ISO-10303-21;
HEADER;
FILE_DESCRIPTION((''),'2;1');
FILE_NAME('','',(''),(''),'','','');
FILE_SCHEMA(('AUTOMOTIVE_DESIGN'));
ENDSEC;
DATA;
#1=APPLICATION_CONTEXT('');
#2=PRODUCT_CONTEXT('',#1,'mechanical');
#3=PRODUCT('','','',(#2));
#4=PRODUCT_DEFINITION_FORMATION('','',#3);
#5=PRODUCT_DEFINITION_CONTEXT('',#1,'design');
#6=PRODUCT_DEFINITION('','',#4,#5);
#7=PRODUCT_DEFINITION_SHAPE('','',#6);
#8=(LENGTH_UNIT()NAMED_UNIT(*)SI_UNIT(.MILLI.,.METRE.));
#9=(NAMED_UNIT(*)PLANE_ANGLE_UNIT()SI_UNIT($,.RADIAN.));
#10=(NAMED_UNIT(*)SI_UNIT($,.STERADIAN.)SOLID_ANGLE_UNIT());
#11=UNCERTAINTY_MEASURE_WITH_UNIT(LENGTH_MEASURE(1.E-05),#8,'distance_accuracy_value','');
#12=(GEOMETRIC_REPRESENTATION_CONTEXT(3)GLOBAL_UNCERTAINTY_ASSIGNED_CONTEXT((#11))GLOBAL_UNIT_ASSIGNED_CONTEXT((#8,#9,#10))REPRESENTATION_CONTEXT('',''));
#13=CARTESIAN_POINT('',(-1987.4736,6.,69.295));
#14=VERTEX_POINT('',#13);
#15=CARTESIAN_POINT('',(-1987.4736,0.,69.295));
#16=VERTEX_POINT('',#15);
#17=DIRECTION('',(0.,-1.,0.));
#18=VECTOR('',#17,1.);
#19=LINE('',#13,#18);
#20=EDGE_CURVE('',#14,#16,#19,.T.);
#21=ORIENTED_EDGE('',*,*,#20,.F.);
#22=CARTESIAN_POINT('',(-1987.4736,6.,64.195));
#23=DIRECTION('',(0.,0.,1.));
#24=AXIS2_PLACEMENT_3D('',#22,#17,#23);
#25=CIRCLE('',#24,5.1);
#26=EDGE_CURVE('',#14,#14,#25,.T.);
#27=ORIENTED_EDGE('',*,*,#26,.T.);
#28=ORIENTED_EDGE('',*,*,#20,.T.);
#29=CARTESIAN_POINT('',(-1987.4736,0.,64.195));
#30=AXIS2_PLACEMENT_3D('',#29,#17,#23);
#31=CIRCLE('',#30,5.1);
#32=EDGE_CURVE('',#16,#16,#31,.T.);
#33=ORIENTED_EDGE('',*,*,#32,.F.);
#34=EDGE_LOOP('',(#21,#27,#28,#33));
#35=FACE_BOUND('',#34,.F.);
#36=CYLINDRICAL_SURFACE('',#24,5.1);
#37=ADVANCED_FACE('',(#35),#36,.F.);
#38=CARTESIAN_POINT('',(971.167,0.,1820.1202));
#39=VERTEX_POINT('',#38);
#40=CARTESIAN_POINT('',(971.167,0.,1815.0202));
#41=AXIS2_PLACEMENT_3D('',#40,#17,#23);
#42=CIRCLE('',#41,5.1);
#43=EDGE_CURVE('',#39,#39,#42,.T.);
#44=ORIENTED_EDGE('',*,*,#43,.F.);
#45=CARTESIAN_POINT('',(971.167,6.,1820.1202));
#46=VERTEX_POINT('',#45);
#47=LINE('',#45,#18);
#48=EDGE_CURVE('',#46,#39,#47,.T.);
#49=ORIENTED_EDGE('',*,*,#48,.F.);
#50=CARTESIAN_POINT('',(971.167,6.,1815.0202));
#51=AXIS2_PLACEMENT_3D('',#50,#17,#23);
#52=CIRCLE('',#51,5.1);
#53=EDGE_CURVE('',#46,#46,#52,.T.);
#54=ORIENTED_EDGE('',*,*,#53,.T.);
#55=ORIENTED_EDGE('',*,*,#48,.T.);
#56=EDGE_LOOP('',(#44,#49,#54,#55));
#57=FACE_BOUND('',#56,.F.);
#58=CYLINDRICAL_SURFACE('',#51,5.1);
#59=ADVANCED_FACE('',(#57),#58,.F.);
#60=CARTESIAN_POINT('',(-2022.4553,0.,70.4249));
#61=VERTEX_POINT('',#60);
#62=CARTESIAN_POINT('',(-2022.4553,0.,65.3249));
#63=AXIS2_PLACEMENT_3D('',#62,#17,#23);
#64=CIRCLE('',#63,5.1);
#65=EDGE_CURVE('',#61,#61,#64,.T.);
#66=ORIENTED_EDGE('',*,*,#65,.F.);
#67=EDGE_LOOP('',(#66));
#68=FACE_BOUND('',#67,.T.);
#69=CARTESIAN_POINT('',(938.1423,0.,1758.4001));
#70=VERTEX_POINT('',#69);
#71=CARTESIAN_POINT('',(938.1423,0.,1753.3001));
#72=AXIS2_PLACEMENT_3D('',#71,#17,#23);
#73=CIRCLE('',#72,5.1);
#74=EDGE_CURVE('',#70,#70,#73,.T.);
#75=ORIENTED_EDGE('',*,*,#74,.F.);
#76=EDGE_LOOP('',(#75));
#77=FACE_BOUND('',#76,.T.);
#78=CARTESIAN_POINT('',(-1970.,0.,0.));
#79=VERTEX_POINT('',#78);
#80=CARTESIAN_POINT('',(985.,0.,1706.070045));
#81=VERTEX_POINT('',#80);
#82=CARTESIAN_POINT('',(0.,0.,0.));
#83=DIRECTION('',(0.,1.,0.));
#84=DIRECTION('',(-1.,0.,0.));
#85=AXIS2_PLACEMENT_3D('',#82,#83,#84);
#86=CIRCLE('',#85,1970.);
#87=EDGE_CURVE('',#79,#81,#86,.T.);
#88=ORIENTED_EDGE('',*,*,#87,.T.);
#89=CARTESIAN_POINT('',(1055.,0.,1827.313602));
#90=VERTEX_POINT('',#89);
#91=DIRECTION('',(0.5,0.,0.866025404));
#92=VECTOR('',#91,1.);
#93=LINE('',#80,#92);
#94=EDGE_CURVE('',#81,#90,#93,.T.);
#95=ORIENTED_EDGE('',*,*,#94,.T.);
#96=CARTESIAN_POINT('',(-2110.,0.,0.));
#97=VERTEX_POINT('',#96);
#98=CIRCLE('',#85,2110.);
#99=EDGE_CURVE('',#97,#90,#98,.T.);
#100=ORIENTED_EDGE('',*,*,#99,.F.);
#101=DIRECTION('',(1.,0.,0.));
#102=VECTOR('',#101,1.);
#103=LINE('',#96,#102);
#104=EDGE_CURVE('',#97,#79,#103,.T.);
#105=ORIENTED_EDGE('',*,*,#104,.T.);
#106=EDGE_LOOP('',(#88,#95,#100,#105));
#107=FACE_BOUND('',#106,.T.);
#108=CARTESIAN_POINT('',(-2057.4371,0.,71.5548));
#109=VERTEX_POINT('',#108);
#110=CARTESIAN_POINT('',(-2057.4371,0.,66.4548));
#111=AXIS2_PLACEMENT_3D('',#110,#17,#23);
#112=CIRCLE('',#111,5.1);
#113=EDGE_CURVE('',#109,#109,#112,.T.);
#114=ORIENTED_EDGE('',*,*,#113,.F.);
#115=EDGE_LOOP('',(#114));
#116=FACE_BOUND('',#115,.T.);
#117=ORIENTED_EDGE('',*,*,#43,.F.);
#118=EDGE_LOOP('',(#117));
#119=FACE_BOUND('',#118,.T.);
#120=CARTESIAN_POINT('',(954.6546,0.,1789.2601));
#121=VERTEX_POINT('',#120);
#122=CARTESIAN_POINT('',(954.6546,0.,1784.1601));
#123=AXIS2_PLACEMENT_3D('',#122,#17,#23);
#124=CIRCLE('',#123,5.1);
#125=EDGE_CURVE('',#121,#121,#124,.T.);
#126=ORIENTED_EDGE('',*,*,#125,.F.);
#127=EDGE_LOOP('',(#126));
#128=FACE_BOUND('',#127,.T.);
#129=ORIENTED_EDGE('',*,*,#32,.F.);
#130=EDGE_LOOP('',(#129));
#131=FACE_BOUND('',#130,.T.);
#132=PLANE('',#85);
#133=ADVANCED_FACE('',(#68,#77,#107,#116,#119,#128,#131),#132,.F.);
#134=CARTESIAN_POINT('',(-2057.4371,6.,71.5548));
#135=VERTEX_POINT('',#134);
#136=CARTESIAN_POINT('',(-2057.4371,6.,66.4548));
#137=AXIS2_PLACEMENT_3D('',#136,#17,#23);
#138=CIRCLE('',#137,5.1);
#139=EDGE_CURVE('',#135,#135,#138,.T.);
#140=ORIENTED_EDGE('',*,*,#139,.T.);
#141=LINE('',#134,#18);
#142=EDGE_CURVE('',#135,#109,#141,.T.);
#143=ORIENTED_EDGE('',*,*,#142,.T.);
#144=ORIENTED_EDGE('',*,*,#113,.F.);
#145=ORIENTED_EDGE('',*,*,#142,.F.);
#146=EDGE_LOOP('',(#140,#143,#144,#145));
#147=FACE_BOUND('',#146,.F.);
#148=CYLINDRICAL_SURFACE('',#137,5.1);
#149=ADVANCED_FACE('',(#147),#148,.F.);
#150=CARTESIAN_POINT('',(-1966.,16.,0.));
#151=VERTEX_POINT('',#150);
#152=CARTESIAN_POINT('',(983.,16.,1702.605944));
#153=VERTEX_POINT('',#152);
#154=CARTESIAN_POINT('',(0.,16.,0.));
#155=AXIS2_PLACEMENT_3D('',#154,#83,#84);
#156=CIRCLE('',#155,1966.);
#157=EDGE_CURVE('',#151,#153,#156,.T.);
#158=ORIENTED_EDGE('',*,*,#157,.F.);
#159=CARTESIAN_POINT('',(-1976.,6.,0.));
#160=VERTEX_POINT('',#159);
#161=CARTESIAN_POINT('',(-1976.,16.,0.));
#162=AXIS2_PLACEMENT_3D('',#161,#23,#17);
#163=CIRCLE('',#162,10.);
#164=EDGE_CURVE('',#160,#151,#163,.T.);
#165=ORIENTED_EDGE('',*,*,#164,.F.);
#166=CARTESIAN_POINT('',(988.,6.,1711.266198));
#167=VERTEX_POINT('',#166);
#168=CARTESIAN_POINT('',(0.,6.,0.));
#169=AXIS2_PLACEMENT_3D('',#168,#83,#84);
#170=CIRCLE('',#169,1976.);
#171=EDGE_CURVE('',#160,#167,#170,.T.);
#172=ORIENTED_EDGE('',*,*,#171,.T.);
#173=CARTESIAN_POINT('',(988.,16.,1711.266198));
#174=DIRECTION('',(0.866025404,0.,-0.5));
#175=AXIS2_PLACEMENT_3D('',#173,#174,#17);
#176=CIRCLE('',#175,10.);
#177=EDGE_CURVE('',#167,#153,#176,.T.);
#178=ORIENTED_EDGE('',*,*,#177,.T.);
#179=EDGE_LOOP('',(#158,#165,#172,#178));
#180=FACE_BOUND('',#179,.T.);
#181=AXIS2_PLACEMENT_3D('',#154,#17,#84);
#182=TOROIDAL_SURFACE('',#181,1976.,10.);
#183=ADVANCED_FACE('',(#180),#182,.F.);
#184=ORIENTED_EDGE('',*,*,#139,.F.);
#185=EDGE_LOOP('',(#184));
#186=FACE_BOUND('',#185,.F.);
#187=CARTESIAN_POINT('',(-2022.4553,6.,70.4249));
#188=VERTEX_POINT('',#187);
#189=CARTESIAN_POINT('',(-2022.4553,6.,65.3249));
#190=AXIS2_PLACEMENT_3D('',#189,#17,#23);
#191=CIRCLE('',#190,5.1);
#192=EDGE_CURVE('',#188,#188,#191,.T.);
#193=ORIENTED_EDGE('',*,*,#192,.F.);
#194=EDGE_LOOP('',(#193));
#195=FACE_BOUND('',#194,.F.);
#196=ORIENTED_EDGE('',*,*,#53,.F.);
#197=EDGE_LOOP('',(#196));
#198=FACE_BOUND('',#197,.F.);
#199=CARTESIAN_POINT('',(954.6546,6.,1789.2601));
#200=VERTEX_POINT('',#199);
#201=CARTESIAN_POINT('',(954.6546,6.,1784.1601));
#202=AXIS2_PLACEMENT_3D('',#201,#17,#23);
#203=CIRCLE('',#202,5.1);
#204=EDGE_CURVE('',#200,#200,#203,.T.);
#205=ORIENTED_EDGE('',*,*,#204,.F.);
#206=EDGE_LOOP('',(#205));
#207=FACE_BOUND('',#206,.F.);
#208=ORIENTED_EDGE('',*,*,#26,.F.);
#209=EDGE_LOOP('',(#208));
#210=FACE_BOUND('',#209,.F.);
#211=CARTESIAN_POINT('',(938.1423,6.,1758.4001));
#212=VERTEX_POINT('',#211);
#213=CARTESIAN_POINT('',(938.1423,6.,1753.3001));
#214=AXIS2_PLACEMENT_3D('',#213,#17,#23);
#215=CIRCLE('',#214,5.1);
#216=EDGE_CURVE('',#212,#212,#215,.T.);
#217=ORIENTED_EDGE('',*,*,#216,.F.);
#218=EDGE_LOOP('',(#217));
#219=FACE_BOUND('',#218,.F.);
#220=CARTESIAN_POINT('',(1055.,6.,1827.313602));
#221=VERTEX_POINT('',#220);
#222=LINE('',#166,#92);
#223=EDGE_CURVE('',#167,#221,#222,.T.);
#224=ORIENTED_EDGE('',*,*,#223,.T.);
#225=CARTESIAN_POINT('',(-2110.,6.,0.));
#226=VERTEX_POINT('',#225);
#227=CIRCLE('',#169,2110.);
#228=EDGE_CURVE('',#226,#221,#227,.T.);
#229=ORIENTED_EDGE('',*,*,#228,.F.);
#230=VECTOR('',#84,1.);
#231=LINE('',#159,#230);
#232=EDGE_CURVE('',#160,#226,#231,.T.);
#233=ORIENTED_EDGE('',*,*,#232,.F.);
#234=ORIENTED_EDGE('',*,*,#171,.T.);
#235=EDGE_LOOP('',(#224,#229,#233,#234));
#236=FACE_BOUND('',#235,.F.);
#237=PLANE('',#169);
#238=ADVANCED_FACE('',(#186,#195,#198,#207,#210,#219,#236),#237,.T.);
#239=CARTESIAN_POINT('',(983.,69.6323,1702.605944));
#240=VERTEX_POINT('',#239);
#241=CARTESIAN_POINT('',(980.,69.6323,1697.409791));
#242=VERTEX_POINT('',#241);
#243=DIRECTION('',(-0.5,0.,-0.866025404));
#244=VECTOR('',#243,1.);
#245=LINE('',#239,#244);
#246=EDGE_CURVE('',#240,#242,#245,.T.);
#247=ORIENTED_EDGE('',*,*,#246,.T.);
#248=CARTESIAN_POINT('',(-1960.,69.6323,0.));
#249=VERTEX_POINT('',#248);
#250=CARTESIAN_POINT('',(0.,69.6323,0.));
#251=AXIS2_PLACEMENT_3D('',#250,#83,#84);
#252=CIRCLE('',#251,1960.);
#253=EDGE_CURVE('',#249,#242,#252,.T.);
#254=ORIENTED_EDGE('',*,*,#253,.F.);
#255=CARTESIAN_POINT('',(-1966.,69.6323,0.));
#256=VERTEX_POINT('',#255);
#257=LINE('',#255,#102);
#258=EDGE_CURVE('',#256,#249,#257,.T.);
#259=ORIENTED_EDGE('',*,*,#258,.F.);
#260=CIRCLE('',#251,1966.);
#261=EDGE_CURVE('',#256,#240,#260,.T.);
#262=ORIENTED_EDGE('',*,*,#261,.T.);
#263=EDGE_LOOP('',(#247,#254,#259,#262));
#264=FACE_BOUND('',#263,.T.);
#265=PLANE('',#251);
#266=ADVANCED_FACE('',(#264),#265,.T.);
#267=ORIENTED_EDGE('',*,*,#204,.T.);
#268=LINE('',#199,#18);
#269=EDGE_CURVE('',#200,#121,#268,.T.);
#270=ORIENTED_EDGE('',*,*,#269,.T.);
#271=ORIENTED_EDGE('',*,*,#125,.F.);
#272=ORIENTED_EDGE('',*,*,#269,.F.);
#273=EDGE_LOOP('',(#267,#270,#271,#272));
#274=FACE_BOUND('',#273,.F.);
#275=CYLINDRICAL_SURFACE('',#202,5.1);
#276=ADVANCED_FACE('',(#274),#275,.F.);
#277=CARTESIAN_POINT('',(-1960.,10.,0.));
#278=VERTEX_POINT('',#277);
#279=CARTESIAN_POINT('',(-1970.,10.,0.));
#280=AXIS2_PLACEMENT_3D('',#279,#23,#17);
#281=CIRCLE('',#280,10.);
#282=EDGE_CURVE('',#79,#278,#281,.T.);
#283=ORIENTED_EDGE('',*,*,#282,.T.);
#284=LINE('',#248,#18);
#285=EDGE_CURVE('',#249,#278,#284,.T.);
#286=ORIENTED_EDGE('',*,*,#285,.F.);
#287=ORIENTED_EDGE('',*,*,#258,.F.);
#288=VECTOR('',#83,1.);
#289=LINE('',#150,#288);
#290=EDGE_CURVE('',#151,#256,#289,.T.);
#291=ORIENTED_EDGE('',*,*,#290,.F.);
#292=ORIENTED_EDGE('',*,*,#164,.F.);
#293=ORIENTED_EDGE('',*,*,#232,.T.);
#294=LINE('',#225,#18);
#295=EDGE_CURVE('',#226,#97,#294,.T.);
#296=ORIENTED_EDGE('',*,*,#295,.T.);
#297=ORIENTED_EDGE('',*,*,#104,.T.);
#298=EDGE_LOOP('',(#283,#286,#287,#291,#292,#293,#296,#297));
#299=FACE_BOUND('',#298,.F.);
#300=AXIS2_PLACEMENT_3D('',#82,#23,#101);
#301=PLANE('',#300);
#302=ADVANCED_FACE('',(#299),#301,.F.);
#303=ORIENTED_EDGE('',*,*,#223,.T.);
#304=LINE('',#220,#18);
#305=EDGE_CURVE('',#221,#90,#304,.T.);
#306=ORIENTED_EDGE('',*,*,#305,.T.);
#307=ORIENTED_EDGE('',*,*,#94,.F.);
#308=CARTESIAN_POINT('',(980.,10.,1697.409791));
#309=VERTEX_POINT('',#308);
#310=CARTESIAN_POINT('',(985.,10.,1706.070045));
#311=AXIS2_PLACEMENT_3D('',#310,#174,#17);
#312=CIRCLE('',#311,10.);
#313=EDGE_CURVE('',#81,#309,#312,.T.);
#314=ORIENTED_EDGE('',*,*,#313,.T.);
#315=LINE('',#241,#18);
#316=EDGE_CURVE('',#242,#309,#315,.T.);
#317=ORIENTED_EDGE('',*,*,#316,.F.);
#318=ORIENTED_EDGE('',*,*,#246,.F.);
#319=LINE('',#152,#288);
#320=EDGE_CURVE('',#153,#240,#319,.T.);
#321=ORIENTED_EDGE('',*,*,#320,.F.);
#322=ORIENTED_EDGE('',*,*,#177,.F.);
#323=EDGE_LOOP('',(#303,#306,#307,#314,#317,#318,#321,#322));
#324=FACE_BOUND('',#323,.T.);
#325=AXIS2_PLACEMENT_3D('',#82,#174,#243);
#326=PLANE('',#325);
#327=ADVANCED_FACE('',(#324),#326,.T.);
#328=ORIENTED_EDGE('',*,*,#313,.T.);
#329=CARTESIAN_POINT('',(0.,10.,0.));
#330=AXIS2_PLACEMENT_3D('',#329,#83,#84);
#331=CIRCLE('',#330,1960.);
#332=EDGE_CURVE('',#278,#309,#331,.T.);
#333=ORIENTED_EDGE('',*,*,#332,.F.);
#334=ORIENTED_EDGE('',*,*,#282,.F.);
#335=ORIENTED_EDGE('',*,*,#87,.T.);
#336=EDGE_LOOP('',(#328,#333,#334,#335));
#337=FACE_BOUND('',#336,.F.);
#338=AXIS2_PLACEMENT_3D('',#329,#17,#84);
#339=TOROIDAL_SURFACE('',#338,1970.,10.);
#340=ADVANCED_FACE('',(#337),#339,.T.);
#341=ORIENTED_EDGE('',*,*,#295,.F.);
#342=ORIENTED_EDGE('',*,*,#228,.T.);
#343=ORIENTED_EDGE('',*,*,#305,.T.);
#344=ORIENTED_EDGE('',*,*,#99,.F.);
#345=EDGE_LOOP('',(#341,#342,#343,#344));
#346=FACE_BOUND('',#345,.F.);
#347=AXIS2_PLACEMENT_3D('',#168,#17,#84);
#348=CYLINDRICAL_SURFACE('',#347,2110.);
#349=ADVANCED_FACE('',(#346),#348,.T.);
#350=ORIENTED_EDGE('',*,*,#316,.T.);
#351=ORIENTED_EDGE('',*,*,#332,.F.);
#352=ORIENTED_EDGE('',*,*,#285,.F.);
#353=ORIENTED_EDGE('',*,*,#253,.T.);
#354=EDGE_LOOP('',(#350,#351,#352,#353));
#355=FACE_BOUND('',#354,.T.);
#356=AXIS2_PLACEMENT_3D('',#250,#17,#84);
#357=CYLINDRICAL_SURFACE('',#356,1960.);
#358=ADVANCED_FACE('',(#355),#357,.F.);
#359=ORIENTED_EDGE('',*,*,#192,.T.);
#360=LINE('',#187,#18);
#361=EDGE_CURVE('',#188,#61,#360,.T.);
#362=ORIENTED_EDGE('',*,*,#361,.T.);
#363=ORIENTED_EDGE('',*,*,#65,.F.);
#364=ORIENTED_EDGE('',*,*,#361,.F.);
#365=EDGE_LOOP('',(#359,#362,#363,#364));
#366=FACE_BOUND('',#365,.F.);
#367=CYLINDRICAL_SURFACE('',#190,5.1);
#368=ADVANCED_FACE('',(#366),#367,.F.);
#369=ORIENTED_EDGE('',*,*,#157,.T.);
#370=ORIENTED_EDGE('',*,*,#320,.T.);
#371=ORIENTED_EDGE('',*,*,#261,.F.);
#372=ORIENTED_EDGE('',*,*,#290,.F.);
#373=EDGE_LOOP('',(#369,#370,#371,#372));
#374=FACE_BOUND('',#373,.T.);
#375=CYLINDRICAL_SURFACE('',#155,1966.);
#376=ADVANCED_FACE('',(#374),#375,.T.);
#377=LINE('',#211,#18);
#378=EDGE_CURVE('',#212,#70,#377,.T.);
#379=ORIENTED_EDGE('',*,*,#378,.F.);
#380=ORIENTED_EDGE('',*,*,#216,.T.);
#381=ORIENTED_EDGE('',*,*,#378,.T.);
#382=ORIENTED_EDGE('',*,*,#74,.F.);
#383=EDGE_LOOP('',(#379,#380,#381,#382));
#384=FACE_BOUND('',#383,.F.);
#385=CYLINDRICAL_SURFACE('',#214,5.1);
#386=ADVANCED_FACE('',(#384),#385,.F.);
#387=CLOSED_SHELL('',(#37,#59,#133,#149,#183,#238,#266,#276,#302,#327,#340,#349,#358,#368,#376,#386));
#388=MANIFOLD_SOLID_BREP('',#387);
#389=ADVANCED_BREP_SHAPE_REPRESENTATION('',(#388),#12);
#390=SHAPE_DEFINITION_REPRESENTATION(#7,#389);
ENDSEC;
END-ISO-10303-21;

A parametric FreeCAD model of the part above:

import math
import FreeCAD as App
import Part
import Sketcher
Q = App.Units.Quantity

doc = App.newDocument("Part")
body = doc.addObject("PartDesign::Body", "Body")

# Sketch on XY plane
sketch1 = body.newObject("Sketcher::SketchObject", "Sketch")
sketch1.AttachmentSupport = (doc.getObject("XY_Plane"), [""])
sketch1.MapMode = "FlatFace"
sketch1.addGeometry(Part.LineSegment(App.Vector(-2110, 0, 0), App.Vector(-1970, 0, 0)), False)
sketch1.addGeometry(Part.ArcOfCircle(Part.Circle(App.Vector(-1970, 10, 0), App.Vector(0, 0, 1), 10), math.radians(-90), math.radians(0)), False)
sketch1.addGeometry(Part.LineSegment(App.Vector(-1960, 10, 0), App.Vector(-1960, 69.6323, 0)), False)
sketch1.addGeometry(Part.LineSegment(App.Vector(-1960, 69.6323, 0), App.Vector(-1966, 69.6323, 0)), False)
sketch1.addGeometry(Part.LineSegment(App.Vector(-1966, 69.6323, 0), App.Vector(-1966, 16, 0)), False)
sketch1.addGeometry(Part.ArcOfCircle(Part.Circle(App.Vector(-1976, 16, 0), App.Vector(0, 0, 1), 10), math.radians(-90), math.radians(0)), False)
sketch1.addGeometry(Part.LineSegment(App.Vector(-1976, 6, 0), App.Vector(-2110, 6, 0)), False)
sketch1.addGeometry(Part.LineSegment(App.Vector(-2110, 6, 0), App.Vector(-2110, 0, 0)), False)
sketch1.addConstraint(Sketcher.Constraint("Tangent", 0, 2, 1, 1))
sketch1.addConstraint(Sketcher.Constraint("Tangent", 1, 2, 2, 1))
sketch1.addConstraint(Sketcher.Constraint("Coincident", 2, 2, 3, 1))
sketch1.addConstraint(Sketcher.Constraint("Coincident", 3, 2, 4, 1))
sketch1.addConstraint(Sketcher.Constraint("Tangent", 4, 2, 5, 2))
sketch1.addConstraint(Sketcher.Constraint("Tangent", 5, 1, 6, 1))
sketch1.addConstraint(Sketcher.Constraint("Coincident", 6, 2, 7, 1))
sketch1.addConstraint(Sketcher.Constraint("Coincident", 7, 2, 0, 1))
sketch1.addConstraint(Sketcher.Constraint("Horizontal", 0))
sketch1.addConstraint(Sketcher.Constraint("Vertical", 2))
sketch1.addConstraint(Sketcher.Constraint("Horizontal", 3))
sketch1.addConstraint(Sketcher.Constraint("Vertical", 4))
sketch1.addConstraint(Sketcher.Constraint("Horizontal", 6))
sketch1.addConstraint(Sketcher.Constraint("Vertical", 7))
sketch1.addConstraint(Sketcher.Constraint("Equal", 1, 5))
sketch1.addConstraint(Sketcher.Constraint("PointOnObject", 0, 2, -1))
sketch1.addConstraint(Sketcher.Constraint("Equal", 3, 7))
sketch1.addConstraint(Sketcher.Constraint("Radius", 1, Q("10 mm")))
sketch1.addConstraint(Sketcher.Constraint("DistanceX", 3, 2, 3, 1, Q("6 mm")))
sketch1.addConstraint(Sketcher.Constraint("DistanceX", 1, 2, -1, 1, Q("1960 mm")))
sketch1.addConstraint(Sketcher.Constraint("DistanceX", 0, 1, 0, 2, Q("140 mm")))
sketch1.addConstraint(Sketcher.Constraint("DistanceY", 2, 1, 2, 2, Q("59.6323 mm")))
revolution = body.newObject("PartDesign::Revolution", "Revolution")
revolution.Profile = sketch1
revolution.ReferenceAxis = (sketch1, ["V_Axis"])
revolution.Angle = 120

# Sketch on XZ plane
sketch2 = body.newObject("Sketcher::SketchObject", "Sketch001")
sketch2.AttachmentSupport = (doc.getObject("XZ_Plane"), [""])
sketch2.MapMode = "FlatFace"
sketch2.AttachmentOffset = App.Placement(App.Vector(0, 0, -6), App.Rotation())
sketch2.addGeometry(Part.Circle(App.Vector(954.6546, 1784.1601, 0), App.Vector(0, 0, 1), 5.1), False)
sketch2.addGeometry(Part.Circle(App.Vector(938.1423, 1753.3001, 0), App.Vector(0, 0, 1), 5.1), False)
sketch2.addGeometry(Part.Circle(App.Vector(971.167, 1815.0202, 0), App.Vector(0, 0, 1), 5.1), False)
sketch2.addConstraint(Sketcher.Constraint("Equal", 0, 1))
sketch2.addConstraint(Sketcher.Constraint("Equal", 1, 2))
sketch2.addConstraint(Sketcher.Constraint("Diameter", 0, Q("10.2 mm")))
sketch2.addConstraint(Sketcher.Constraint("DistanceY", -1, 1, 1, 3, Q("1753.3 mm")))
sketch2.addConstraint(Sketcher.Constraint("DistanceY", -1, 1, 0, 3, Q("1784.16 mm")))
sketch2.addConstraint(Sketcher.Constraint("DistanceY", 0, 3, 2, 3, Q("30.86 mm")))
sketch2.addConstraint(Sketcher.Constraint("DistanceX", -1, 1, 2, 3, Q("971.167 mm")))
sketch2.addConstraint(Sketcher.Constraint("DistanceX", -1, 1, 0, 3, Q("954.6546 mm")))
sketch2.addConstraint(Sketcher.Constraint("DistanceX", -1, 1, 1, 3, Q("938.1423 mm")))
doc.recompute()
hole = body.newObject("PartDesign::Hole", "Hole")
hole.Profile = sketch2
hole.ThreadType = "None"
hole.Diameter = 10.2
hole.DepthType = "ThroughAll"
hole.Reversed = True

# Sketch on XZ plane
sketch3 = body.newObject("Sketcher::SketchObject", "Sketch002")
sketch3.AttachmentSupport = (doc.getObject("XZ_Plane"), [""])
sketch3.MapMode = "FlatFace"
sketch3.AttachmentOffset = App.Placement(App.Vector(0, 0, -6), App.Rotation())
sketch3.addGeometry(Part.Circle(App.Vector(-2022.4553, 65.3249, 0), App.Vector(0, 0, 1), 5.1), False)
sketch3.addGeometry(Part.Circle(App.Vector(-2057.4371, 66.4548, 0), App.Vector(0, 0, 1), 5.1), False)
sketch3.addGeometry(Part.Circle(App.Vector(-1987.4736, 64.195, 0), App.Vector(0, 0, 1), 5.1), False)
sketch3.addConstraint(Sketcher.Constraint("Equal", 0, 1))
sketch3.addConstraint(Sketcher.Constraint("Equal", 1, 2))
sketch3.addConstraint(Sketcher.Constraint("Diameter", 0, Q("10.2 mm")))
sketch3.addConstraint(Sketcher.Constraint("DistanceY", 0, 3, 1, 3, Q("1.13 mm")))
sketch3.addConstraint(Sketcher.Constraint("DistanceY", 2, 3, 0, 3, Q("1.13 mm")))
sketch3.addConstraint(Sketcher.Constraint("DistanceY", -1, 1, 0, 3, Q("65.325 mm")))
sketch3.addConstraint(Sketcher.Constraint("DistanceX", 1, 3, -1, 1, Q("2057.437 mm")))
sketch3.addConstraint(Sketcher.Constraint("DistanceX", 0, 3, -1, 1, Q("2022.4553 mm")))
sketch3.addConstraint(Sketcher.Constraint("DistanceX", 2, 3, -1, 1, Q("1987.4736 mm")))
doc.recompute()
hole2 = body.newObject("PartDesign::Hole", "Hole001")
hole2.Profile = sketch3
hole2.ThreadType = "None"
hole2.Diameter = 10.2
hole2.DepthType = "ThroughAll"
hole2.Reversed = True

doc.recompute()
